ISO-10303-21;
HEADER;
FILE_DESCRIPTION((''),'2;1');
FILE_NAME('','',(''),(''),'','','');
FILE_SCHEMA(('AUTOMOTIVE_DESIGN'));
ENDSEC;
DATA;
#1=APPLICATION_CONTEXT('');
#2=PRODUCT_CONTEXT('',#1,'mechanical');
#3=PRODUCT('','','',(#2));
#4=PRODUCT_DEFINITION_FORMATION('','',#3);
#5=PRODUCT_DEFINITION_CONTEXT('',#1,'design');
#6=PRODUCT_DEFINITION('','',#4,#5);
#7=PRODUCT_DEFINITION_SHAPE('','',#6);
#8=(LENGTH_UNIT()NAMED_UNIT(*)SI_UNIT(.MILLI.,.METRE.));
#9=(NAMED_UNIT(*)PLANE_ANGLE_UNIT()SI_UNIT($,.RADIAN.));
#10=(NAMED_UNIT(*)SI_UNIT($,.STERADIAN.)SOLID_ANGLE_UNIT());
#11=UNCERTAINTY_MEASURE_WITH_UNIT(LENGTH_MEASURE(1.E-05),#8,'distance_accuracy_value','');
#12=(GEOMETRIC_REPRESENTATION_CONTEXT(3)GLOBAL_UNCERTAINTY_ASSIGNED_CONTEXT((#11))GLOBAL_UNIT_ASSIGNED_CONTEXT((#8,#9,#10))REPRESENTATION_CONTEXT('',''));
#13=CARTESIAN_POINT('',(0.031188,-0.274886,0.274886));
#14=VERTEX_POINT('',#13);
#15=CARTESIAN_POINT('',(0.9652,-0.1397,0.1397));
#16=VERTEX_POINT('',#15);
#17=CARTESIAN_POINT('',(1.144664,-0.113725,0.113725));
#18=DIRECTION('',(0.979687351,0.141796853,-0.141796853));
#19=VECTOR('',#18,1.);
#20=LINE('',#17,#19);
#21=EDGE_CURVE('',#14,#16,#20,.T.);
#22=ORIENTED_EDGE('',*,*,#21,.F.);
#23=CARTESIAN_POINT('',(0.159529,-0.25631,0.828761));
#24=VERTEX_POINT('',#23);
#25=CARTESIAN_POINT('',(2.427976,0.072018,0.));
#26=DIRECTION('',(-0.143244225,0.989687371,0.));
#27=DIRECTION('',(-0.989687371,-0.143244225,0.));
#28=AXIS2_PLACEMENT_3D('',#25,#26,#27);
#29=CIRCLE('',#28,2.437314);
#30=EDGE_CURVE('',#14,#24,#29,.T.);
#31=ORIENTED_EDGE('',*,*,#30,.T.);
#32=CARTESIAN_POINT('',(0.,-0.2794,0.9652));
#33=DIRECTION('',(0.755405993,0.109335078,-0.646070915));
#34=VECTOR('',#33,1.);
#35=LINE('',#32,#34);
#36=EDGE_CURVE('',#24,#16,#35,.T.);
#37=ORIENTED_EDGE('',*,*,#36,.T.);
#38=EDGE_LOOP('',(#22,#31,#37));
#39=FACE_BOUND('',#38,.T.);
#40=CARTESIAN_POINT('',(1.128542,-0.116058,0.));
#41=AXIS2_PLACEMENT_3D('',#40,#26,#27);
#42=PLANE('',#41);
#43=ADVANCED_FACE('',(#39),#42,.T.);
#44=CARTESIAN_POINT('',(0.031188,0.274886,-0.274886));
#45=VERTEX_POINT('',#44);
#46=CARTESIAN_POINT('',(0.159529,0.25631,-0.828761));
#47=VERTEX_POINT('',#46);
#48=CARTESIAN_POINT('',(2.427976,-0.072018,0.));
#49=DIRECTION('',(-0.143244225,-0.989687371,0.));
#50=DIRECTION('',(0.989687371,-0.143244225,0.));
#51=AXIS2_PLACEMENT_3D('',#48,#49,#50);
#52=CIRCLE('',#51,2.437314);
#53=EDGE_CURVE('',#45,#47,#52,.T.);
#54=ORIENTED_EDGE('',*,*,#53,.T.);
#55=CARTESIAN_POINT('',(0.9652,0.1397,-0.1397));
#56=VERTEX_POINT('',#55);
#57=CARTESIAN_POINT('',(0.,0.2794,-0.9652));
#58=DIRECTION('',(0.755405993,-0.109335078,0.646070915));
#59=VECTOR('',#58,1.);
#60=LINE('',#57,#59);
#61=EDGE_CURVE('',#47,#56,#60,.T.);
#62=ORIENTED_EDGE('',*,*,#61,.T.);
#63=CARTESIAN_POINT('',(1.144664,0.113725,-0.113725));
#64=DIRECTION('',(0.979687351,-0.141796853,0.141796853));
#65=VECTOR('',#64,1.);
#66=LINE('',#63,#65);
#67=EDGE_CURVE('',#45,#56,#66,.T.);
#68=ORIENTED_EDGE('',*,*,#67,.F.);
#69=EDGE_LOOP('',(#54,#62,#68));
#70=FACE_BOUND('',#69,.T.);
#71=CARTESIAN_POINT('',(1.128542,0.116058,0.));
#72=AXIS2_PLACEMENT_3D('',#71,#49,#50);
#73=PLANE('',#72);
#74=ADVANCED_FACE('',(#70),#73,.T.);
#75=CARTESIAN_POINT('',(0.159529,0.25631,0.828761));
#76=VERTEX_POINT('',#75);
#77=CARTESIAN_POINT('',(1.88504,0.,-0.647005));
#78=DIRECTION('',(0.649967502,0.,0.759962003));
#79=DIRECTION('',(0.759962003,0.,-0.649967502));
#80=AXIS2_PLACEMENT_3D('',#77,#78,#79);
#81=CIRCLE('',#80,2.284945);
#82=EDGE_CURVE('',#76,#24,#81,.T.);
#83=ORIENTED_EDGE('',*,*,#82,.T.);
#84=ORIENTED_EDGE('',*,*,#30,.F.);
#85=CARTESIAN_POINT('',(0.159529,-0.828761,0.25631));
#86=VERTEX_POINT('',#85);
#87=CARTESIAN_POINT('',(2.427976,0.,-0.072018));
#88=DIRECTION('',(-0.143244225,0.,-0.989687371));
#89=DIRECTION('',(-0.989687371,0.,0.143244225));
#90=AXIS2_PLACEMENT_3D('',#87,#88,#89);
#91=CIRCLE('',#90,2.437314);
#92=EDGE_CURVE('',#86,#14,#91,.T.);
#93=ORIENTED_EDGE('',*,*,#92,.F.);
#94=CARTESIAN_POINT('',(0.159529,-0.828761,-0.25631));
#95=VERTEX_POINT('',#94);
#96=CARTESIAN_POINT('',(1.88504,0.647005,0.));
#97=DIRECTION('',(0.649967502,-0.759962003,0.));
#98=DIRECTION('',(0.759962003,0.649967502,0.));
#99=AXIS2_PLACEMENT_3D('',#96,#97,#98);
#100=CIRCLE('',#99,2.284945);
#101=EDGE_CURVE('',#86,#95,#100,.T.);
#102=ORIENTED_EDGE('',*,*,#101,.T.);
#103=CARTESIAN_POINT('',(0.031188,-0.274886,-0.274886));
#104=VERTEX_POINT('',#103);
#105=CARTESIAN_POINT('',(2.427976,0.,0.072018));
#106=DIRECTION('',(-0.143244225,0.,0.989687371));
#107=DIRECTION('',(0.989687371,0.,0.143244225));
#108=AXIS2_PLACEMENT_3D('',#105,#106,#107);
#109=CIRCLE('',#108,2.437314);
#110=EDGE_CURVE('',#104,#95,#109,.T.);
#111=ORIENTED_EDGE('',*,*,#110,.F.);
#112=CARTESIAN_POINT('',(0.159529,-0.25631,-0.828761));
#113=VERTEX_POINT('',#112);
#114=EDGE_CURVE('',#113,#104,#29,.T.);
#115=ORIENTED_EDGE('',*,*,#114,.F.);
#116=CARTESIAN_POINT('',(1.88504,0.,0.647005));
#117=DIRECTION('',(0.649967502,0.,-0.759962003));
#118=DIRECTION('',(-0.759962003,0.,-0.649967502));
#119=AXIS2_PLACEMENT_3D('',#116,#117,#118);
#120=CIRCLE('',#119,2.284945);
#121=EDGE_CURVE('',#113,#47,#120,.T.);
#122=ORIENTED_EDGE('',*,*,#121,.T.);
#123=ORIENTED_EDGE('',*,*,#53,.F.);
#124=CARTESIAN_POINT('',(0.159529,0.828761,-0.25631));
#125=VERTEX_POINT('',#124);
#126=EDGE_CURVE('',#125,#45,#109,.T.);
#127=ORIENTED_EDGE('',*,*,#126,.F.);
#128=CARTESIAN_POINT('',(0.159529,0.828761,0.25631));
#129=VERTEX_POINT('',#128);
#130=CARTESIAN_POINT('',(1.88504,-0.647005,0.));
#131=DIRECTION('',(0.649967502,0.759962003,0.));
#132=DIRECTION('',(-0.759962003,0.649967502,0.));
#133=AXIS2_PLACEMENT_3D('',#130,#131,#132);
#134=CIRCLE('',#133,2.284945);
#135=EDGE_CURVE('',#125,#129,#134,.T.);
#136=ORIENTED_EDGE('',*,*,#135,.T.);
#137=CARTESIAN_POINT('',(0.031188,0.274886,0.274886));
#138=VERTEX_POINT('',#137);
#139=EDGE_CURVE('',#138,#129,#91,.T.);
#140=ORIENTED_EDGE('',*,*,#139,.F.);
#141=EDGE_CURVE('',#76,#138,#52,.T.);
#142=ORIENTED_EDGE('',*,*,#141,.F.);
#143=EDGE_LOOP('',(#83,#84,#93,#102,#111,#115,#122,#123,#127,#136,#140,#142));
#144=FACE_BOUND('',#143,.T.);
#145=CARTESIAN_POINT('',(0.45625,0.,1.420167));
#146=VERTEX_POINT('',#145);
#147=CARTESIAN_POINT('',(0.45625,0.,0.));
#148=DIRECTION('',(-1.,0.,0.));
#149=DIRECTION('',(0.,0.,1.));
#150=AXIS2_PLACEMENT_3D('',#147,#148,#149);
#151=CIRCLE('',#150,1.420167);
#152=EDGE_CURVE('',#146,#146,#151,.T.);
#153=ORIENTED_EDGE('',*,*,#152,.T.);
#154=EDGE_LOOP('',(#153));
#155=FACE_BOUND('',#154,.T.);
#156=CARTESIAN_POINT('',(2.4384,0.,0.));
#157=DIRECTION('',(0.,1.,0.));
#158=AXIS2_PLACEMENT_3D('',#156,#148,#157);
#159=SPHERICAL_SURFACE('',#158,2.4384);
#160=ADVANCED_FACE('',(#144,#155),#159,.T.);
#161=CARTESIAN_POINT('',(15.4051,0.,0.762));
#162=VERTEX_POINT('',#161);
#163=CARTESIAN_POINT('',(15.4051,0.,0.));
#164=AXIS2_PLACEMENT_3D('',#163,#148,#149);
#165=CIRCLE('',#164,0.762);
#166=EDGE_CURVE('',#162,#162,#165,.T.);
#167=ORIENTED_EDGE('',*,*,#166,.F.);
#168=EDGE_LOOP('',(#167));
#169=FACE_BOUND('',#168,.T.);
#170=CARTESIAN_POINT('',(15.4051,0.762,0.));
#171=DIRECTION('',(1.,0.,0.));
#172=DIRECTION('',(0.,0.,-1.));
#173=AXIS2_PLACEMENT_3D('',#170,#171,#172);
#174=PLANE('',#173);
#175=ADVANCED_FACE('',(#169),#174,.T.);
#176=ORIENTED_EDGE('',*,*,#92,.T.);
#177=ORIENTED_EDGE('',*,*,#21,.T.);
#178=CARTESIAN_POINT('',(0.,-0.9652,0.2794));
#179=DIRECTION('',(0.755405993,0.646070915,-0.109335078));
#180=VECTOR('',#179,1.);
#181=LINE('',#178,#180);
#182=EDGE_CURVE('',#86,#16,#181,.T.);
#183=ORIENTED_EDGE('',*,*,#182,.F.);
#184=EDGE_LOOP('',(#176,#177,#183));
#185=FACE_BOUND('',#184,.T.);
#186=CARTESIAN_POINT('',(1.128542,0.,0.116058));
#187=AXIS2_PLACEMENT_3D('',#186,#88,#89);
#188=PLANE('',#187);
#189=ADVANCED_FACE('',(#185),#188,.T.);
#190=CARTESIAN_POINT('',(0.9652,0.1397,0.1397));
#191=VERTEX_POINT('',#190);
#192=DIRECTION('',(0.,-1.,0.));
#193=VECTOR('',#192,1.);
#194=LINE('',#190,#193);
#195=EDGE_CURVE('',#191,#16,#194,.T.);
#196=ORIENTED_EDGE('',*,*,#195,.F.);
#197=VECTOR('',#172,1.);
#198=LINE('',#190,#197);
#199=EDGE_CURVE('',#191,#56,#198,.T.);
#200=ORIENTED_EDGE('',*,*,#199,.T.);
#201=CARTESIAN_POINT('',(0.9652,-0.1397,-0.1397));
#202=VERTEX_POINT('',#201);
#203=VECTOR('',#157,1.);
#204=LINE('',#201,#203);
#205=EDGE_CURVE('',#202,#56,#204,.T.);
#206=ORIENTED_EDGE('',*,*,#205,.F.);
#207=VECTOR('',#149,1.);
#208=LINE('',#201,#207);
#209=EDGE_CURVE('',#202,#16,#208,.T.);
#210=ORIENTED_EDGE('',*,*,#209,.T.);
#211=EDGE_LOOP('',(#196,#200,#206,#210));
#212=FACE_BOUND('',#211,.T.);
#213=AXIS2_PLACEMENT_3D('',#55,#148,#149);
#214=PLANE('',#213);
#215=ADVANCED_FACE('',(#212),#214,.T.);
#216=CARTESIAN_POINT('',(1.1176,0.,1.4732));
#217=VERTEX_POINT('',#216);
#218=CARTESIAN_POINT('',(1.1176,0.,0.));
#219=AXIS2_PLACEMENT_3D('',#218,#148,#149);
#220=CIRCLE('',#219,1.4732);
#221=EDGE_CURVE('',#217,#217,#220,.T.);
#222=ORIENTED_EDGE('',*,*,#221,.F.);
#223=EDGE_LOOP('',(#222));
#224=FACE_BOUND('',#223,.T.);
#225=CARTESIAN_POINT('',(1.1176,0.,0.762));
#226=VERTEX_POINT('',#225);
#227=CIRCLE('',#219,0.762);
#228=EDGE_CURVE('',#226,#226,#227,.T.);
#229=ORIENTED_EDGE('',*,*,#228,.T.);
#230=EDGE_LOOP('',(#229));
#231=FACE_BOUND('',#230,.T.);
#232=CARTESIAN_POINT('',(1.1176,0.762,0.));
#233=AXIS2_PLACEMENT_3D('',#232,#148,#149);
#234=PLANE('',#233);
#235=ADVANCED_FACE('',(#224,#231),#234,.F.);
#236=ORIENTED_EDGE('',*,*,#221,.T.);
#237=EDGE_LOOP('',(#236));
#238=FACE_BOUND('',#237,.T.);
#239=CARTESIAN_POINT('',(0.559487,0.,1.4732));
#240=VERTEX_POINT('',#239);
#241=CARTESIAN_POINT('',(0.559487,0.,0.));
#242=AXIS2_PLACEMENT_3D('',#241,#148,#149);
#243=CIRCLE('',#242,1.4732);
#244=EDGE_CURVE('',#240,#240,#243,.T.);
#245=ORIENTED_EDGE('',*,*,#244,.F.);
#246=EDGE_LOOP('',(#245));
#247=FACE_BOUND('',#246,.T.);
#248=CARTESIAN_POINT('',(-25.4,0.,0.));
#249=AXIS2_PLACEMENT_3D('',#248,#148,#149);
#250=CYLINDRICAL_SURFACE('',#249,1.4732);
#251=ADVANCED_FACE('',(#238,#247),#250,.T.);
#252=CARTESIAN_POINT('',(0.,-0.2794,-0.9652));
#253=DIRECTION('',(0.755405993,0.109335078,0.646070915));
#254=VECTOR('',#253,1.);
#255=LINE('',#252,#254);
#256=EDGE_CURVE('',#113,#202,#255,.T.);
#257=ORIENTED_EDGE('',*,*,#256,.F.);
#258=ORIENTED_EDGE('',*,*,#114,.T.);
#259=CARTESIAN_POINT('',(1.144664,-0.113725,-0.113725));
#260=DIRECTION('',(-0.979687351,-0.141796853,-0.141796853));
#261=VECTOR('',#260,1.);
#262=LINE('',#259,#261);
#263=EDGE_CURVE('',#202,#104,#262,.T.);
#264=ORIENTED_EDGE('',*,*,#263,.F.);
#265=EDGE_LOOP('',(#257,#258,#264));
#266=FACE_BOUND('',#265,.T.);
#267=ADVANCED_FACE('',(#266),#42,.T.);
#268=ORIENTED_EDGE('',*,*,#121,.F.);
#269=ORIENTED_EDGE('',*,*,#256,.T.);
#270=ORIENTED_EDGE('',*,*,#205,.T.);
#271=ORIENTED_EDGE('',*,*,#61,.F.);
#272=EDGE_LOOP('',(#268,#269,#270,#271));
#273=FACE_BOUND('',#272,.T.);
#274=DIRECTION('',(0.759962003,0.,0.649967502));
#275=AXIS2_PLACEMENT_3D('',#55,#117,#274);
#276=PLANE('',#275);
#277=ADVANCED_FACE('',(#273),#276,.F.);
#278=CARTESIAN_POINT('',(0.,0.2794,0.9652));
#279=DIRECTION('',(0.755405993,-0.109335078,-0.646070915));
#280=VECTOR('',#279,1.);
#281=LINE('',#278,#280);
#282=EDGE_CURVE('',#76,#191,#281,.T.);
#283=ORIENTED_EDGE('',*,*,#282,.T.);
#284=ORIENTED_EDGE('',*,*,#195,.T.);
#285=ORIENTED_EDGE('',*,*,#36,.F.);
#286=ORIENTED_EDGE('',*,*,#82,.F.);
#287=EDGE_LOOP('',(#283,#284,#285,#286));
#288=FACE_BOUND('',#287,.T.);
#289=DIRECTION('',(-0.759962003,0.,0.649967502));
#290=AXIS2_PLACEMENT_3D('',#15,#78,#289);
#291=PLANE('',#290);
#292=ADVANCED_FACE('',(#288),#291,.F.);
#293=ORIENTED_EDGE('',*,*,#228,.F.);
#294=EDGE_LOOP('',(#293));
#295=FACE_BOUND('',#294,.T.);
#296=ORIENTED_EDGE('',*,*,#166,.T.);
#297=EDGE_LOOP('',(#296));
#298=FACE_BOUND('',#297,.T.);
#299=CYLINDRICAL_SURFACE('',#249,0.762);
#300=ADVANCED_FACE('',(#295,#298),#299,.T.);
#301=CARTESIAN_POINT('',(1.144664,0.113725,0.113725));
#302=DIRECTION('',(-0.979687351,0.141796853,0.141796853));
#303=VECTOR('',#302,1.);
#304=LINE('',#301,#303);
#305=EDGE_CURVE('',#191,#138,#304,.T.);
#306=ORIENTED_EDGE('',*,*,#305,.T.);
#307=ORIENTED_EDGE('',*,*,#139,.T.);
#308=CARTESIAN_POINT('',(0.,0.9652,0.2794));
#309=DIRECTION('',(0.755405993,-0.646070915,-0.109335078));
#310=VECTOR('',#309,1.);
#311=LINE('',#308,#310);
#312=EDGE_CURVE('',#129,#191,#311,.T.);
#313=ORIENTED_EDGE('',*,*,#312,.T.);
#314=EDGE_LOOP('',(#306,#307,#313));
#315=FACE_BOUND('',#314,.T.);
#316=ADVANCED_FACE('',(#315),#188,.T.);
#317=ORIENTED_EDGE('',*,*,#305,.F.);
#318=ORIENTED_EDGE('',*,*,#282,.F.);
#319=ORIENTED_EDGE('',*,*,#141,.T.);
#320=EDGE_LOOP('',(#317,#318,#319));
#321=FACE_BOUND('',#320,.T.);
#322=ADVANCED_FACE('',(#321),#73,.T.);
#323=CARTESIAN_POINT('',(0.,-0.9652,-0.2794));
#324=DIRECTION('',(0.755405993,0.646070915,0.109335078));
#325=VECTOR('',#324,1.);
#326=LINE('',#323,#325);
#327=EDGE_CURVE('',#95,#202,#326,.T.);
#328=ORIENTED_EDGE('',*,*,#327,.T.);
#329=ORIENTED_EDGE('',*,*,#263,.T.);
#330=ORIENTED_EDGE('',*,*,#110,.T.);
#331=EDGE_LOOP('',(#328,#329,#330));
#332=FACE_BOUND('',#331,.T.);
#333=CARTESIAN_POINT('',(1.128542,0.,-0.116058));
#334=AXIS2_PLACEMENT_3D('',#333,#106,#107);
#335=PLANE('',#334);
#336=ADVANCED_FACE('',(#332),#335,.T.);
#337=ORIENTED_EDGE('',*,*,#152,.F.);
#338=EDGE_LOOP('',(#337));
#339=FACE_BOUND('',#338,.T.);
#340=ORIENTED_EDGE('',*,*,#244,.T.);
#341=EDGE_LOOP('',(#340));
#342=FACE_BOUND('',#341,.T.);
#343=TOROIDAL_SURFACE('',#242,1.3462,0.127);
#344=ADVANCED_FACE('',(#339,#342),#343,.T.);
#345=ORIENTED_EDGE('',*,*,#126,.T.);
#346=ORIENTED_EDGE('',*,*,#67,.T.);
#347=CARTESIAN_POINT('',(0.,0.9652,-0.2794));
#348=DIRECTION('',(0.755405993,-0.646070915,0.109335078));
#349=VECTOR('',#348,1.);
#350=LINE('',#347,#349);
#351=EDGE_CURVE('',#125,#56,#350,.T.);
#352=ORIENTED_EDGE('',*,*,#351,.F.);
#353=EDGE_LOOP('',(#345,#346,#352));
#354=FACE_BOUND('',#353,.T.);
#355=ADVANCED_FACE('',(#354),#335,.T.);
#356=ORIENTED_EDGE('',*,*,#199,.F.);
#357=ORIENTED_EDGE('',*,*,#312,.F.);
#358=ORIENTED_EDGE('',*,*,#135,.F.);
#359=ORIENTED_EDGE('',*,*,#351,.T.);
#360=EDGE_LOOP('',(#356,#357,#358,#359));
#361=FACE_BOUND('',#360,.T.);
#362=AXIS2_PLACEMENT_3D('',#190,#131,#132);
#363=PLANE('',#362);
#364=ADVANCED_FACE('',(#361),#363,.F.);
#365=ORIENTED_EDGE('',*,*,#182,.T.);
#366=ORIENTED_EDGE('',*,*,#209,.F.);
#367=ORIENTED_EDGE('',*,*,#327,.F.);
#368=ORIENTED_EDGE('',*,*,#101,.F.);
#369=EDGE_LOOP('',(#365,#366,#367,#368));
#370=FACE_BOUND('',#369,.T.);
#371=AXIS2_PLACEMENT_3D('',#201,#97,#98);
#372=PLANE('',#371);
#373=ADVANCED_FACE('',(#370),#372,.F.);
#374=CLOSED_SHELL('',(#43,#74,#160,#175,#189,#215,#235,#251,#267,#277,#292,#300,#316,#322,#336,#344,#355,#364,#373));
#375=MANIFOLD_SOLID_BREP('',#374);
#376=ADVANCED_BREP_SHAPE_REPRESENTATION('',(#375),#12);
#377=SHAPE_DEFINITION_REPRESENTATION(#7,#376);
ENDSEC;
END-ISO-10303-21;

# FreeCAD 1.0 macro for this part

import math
import FreeCAD as App
import Part
import Sketcher

V = App.Vector
Q = App.Units.Quantity


def add_polygon(sketch, points):
    """Adds a closed chain of lines whose ends are joined by coincident constraints."""
    first, n = sketch.GeometryCount, len(points)
    for a, b in zip(points, points[1:] + points[:1]):
        sketch.addGeometry(Part.LineSegment(App.Vector(*a, 0), App.Vector(*b, 0)), False)
    for i in range(n):
        sketch.addConstraint(Sketcher.Constraint("Coincident", first + i, 2, first + (i + 1) % n, 1))

doc = App.newDocument("Part")
body = doc.addObject("PartDesign::Body", "Body")

sketch1 = body.newObject("Sketcher::SketchObject", "Sketch")
sketch1.AttachmentSupport = (doc.getObject("XY_Plane"), [""])
sketch1.MapMode = "FlatFace"
sketch1.addGeometry([
    Part.LineSegment(V(1.1176, 0.762, 0), V(1.1176, 1.4732, 0)),
    Part.LineSegment(V(1.1176, 1.4732, 0), V(0.559487, 1.4732, 0)),
    Part.ArcOfCircle(Part.Circle(V(0.559487, 1.3462, 0), V(0, 0, 1), 0.127), math.radians(90), math.radians(144.379237)),
    Part.ArcOfCircle(Part.Circle(V(2.4384, 0, 0), V(0, 0, 1), 2.4384), math.radians(144.379237), math.radians(180)),
    Part.LineSegment(V(0, 0, 0), V(15.4051, 0, 0)),
    Part.LineSegment(V(15.4051, 0, 0), V(15.4051, 0.762, 0)),
    Part.LineSegment(V(15.4051, 0.762, 0), V(1.1176, 0.762, 0)),
], False)
sketch1.addConstraint([
    Sketcher.Constraint("Coincident", 0, 2, 1, 1),
    Sketcher.Constraint("Tangent", 1, 2, 2, 1),
    Sketcher.Constraint("Tangent", 2, 2, 3, 1),
    Sketcher.Constraint("Coincident", 3, 2, 4, 1),
    Sketcher.Constraint("Coincident", 4, 2, 5, 1),
    Sketcher.Constraint("Coincident", 5, 2, 6, 1),
    Sketcher.Constraint("Coincident", 6, 2, 0, 1),
    Sketcher.Constraint("Vertical", 0),
    Sketcher.Constraint("Horizontal", 1),
    Sketcher.Constraint("Horizontal", 4),
    Sketcher.Constraint("Vertical", 5),
    Sketcher.Constraint("Horizontal", 6),
    Sketcher.Constraint("Coincident", 3, 2, -1, 1),
    Sketcher.Constraint("PointOnObject", 3, 3, -1),
    Sketcher.Constraint("Radius", 2, Q("0.005 in")),
    Sketcher.Constraint("Radius", 3, Q("0.096 in")),
    Sketcher.Constraint("DistanceY", 5, 1, 5, 2, Q("0.03 in")),
    Sketcher.Constraint("DistanceX", 6, 2, 6, 1, Q("0.5625 in")),
    Sketcher.Constraint("DistanceY", 0, 1, 0, 2, Q("0.028 in")),
    Sketcher.Constraint("DistanceX", 4, 1, 4, 2, Q("0.6065 in")),
])
revolution = body.newObject("PartDesign::Revolution", "Revolution")
revolution.Profile = sketch1
revolution.ReferenceAxis = (sketch1, ["H_Axis"])
revolution.Angle = 360

sketch2 = body.newObject("Sketcher::SketchObject", "Sketch001")
sketch2.AttachmentSupport = (doc.getObject("YZ_Plane"), [""])
sketch2.MapMode = "FlatFace"
add_polygon(sketch2, [(0.9652, 0.2794), (-0.9652, 0.2794), (-0.9652, -0.2794), (0.9652, -0.2794)])
sketch2.addConstraint([
    Sketcher.Constraint("Horizontal", 0),
    Sketcher.Constraint("Vertical", 1),
    Sketcher.Constraint("Horizontal", 2),
    Sketcher.Constraint("Vertical", 3),
    Sketcher.Constraint("Symmetric", 0, 2, 2, 2, -1, 1),
    Sketcher.Constraint("DistanceX", 0, 2, 0, 1, Q("0.076 in")),
    Sketcher.Constraint("DistanceY", 1, 2, 1, 1, Q("0.022 in")),
])

sketch3 = body.newObject("Sketcher::SketchObject", "Sketch002")
sketch3.AttachmentSupport = (doc.getObject("YZ_Plane"), [""])
sketch3.MapMode = "FlatFace"
sketch3.AttachmentOffset = App.Placement(V(0, 0, 0.038 * 25.4), App.Rotation())
add_polygon(sketch3, [(0.1397, 0.1397), (-0.1397, 0.1397), (-0.1397, -0.1397), (0.1397, -0.1397)])
sketch3.addConstraint([
    Sketcher.Constraint("Horizontal", 0),
    Sketcher.Constraint("Vertical", 1),
    Sketcher.Constraint("Horizontal", 2),
    Sketcher.Constraint("Vertical", 3),
    Sketcher.Constraint("Symmetric", 0, 2, 2, 2, -1, 1),
    Sketcher.Constraint("Equal", 2, 1),
    Sketcher.Constraint("DistanceX", 0, 2, 0, 1, Q("0.011 in")),
])

subtractiveloft = body.newObject("PartDesign::SubtractiveLoft", "SubtractiveLoft")
subtractiveloft.Profile = sketch2
subtractiveloft.Sections = [sketch3]
doc.recompute()

polarpattern = body.newObject("PartDesign::PolarPattern", "PolarPattern")
polarpattern.Originals = [subtractiveloft]
polarpattern.Axis = (doc.getObject("X_Axis"), [""])
polarpattern.Angle = 90
polarpattern.Occurrences = 2
body.Tip = polarpattern

doc.recompute()
